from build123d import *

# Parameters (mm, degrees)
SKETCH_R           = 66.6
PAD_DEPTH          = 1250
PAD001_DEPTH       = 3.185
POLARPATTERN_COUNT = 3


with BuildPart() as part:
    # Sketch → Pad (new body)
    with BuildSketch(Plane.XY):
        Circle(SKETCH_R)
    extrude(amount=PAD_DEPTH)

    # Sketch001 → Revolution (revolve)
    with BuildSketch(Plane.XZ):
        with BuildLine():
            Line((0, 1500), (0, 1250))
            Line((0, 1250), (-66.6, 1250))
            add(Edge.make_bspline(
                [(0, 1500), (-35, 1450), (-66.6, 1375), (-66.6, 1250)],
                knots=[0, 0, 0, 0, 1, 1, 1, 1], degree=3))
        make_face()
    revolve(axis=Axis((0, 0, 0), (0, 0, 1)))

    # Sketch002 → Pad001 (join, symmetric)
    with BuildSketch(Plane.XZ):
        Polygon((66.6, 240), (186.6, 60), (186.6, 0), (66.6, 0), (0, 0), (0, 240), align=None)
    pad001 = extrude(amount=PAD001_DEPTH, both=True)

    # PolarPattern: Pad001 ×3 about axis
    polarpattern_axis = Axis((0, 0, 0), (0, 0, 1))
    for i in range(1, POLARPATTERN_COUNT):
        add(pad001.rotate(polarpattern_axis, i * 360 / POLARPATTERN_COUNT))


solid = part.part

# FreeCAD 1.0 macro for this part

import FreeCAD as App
import Part
import Sketcher

doc = App.newDocument("Part")
body = doc.addObject("PartDesign::Body", "Body")

# Sketch on XY plane
sketch1 = body.newObject("Sketcher::SketchObject", "Sketch")
sketch1.AttachmentSupport = (doc.getObject("XY_Plane"), [""])
sketch1.MapMode = "FlatFace"
sketch1.addGeometry(Part.Circle(App.Vector(0, 0, 0), App.Vector(0, 0, 1), 66.6), False)
sketch1.addConstraint([
    Sketcher.Constraint("Coincident", 0, 3, -1, 1),
    Sketcher.Constraint("Diameter", 0, 133.2),
])
pad1 = body.newObject("PartDesign::Pad", "Pad")
pad1.Profile = sketch1
pad1.Length = 1250

# Sketch on XZ plane
sketch2 = body.newObject("Sketcher::SketchObject", "Sketch001")
sketch2.AttachmentSupport = (doc.getObject("XZ_Plane"), [""])
sketch2.MapMode = "FlatFace"
sketch2.addGeometry([
    Part.LineSegment(App.Vector(0, 1250, 0), App.Vector(0, 1500, 0)),
    Part.BSplineCurve([App.Vector(0, 1500, 0), App.Vector(-35, 1450, 0), App.Vector(-66.6, 1375, 0), App.Vector(-66.6, 1250, 0)], [4, 4], [0, 1], False, 3, [1, 1, 1, 1], False),
    Part.LineSegment(App.Vector(-66.6, 1250, 0), App.Vector(0, 1250, 0)),
], False)
sketch2.addConstraint([
    Sketcher.Constraint("Block", 1),
    Sketcher.Constraint("Coincident", 0, 2, 1, 1),
    Sketcher.Constraint("Coincident", 1, 2, 2, 1),
    Sketcher.Constraint("Coincident", 2, 2, 0, 1),
    Sketcher.Constraint("Vertical", 0),
    Sketcher.Constraint("Horizontal", 2),
])
revolution = body.newObject("PartDesign::Revolution", "Revolution")
revolution.Profile = sketch2
revolution.ReferenceAxis = (sketch2, ["V_Axis"])
revolution.Angle = 360

# Sketch on XZ plane
sketch3 = body.newObject("Sketcher::SketchObject", "Sketch002")
sketch3.AttachmentSupport = (doc.getObject("XZ_Plane"), [""])
sketch3.MapMode = "FlatFace"
sketch3.addGeometry([
    Part.LineSegment(App.Vector(186.6, 60, 0), App.Vector(66.6, 240, 0)),  # 0
    Part.LineSegment(App.Vector(66.6, 240, 0), App.Vector(0, 240, 0)),  # 1
    Part.LineSegment(App.Vector(0, 240, 0), App.Vector(0, 0, 0)),  # 2
    Part.LineSegment(App.Vector(0, 0, 0), App.Vector(186.6, 0, 0)),  # 3
    Part.LineSegment(App.Vector(186.6, 0, 0), App.Vector(186.6, 60, 0)),  # 4
], False)
sketch3.addConstraint([
    Sketcher.Constraint("Coincident", 0, 2, 1, 1),
    Sketcher.Constraint("Coincident", 1, 2, 2, 1),
    Sketcher.Constraint("Coincident", 2, 2, 3, 1),
    Sketcher.Constraint("Coincident", 3, 2, 4, 1),
    Sketcher.Constraint("Coincident", 4, 2, 0, 1),
    Sketcher.Constraint("Horizontal", 1),
    Sketcher.Constraint("Vertical", 2),
    Sketcher.Constraint("Horizontal", 3),
    Sketcher.Constraint("Vertical", 4),
    Sketcher.Constraint("Coincident", 2, 2, -1, 1),
    Sketcher.Constraint("DistanceY", 2, 2, 2, 1, 240.0),
    Sketcher.Constraint("DistanceY", 4, 1, 4, 2, 60.0),
    Sketcher.Constraint("DistanceX", 1, 2, 1, 1, 66.6),
    Sketcher.Constraint("DistanceX", 3, 1, 3, 2, 186.6),
])
pad2 = body.newObject("PartDesign::Pad", "Pad001")
pad2.Profile = sketch3
pad2.Length = 6.37
pad2.Midplane = True
doc.recompute()

polarpattern = body.newObject("PartDesign::PolarPattern", "PolarPattern")
polarpattern.Originals = [pad2]
polarpattern.Axis = (doc.getObject("Z_Axis"), [""])
polarpattern.Angle = 360
polarpattern.Occurrences = 3
body.Tip = polarpattern

doc.recompute()
